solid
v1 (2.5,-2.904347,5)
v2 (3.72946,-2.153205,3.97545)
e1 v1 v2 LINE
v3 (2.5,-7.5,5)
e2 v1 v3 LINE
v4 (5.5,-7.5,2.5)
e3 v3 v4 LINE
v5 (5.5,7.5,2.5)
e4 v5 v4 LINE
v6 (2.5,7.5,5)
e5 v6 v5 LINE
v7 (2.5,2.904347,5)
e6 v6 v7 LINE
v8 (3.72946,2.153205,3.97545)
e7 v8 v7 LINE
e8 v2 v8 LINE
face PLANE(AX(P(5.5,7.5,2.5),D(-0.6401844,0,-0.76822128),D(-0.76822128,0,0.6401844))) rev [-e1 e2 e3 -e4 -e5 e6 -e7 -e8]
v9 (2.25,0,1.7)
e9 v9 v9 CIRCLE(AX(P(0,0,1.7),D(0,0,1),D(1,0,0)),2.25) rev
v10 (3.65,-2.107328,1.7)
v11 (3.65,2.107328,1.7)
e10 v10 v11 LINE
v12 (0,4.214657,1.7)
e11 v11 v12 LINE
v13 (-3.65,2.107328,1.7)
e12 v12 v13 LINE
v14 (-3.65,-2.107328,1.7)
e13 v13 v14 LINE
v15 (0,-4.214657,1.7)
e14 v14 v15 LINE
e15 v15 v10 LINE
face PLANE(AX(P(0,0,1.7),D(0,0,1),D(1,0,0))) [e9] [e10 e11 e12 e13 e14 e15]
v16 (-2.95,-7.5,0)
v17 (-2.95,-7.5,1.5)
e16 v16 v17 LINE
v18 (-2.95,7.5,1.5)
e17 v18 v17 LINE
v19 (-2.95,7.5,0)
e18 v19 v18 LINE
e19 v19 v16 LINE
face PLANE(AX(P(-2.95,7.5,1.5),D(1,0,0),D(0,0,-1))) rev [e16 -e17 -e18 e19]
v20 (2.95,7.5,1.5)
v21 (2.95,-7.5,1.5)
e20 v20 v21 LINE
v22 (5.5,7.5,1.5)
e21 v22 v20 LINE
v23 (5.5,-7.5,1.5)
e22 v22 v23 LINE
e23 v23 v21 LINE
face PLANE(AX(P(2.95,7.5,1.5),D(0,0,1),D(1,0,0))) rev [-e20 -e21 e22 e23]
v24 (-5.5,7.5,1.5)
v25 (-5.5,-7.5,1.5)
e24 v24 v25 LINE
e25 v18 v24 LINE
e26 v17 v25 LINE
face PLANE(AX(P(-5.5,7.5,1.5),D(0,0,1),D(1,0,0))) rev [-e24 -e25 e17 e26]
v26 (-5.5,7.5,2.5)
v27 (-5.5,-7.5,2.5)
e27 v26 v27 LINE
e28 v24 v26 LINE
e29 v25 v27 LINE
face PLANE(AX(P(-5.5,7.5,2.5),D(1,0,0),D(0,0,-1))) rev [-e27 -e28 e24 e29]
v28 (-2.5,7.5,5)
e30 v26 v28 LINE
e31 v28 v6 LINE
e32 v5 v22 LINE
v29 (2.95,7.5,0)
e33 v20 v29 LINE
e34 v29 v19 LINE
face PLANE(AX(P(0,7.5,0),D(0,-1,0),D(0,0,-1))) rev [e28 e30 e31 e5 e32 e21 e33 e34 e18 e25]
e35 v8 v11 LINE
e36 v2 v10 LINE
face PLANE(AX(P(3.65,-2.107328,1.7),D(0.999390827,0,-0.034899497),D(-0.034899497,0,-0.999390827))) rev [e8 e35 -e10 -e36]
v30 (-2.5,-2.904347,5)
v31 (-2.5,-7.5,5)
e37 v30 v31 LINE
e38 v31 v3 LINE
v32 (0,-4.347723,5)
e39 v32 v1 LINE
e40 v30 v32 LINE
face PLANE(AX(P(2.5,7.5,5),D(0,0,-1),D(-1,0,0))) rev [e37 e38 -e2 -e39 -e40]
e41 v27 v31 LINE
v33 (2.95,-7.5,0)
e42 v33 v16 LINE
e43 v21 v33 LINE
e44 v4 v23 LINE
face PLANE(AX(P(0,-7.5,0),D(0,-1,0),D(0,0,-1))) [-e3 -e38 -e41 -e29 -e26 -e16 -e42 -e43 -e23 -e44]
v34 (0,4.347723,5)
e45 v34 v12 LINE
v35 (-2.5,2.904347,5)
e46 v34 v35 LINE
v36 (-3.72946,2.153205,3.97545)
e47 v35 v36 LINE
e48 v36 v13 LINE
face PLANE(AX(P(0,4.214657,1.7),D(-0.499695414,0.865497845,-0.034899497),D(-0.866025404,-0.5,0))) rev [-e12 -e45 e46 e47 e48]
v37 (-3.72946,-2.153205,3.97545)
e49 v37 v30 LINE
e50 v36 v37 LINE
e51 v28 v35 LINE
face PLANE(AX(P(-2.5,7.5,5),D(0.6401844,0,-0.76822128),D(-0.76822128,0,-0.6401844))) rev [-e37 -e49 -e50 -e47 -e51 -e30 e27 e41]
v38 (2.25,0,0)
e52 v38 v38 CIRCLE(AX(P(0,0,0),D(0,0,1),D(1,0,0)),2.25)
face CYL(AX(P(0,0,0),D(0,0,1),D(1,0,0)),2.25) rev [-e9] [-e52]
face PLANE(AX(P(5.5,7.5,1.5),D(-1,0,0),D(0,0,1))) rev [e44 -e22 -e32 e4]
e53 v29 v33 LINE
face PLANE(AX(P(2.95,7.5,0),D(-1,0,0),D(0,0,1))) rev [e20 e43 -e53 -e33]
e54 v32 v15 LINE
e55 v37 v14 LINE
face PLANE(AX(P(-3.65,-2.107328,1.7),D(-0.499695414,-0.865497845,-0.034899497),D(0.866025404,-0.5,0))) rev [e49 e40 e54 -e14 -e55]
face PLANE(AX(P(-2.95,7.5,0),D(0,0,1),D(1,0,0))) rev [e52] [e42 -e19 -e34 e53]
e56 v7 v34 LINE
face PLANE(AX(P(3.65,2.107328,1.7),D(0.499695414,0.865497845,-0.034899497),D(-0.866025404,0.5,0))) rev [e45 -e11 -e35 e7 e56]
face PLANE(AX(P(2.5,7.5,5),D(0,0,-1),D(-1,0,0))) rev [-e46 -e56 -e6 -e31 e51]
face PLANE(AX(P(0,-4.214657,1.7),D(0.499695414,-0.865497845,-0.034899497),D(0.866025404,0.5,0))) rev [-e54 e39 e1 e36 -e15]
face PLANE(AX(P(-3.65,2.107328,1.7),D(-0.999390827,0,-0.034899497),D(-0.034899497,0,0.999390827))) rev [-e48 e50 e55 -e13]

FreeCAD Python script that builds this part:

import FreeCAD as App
import Part
import Sketcher

V = App.Vector
Q = App.Units.Quantity


def faces_at(feature, points):
    """Names of the faces that lie closest to the given points."""
    faces = feature.Shape.Faces
    near = lambda p: min(range(len(faces)), key=lambda i: faces[i].distToShape(Part.Vertex(*p))[0])
    return sorted({f"Face{near(p) + 1}" for p in points})


def add_polygon(sketch, points):
    """Adds a closed chain of lines whose ends are joined by coincident constraints."""
    first, n = sketch.GeometryCount, len(points)
    for a, b in zip(points, points[1:] + points[:1]):
        sketch.addGeometry(Part.LineSegment(App.Vector(*a, 0), App.Vector(*b, 0)), False)
    for i in range(n):
        sketch.addConstraint(Sketcher.Constraint("Coincident", first + i, 2, first + (i + 1) % n, 1))

doc = App.newDocument("Part")
body = doc.addObject("PartDesign::Body", "Body")

# Sketch on XZ plane
sketch1 = body.newObject("Sketcher::SketchObject", "Sketch")
sketch1.AttachmentSupport = (doc.getObject("XZ_Plane"), [""])
sketch1.MapMode = "FlatFace"
add_polygon(sketch1, [(2.95, 0), (-2.95, 0), (-2.95, 1.5), (-5.5, 1.5), (-5.5, 2.5), (-2.5, 5), (2.5, 5), (5.5, 2.5), (5.5, 1.5), (2.95, 1.5)])  # lines 0-9
sketch1.addConstraint([
    Sketcher.Constraint("Horizontal", 0),
    Sketcher.Constraint("Vertical", 1),
    Sketcher.Constraint("Horizontal", 2),
    Sketcher.Constraint("Vertical", 3),
    Sketcher.Constraint("Horizontal", 5),
    Sketcher.Constraint("Vertical", 7),
    Sketcher.Constraint("Horizontal", 8),
    Sketcher.Constraint("Vertical", 9),
    Sketcher.Constraint("Symmetric", 0, 2, 9, 2, -1, 1),
    Sketcher.Constraint("Symmetric", 3, 2, 6, 2, -2),
    Sketcher.Constraint("Horizontal", 2, 2, 7, 2),
    Sketcher.Constraint("Equal", 4, 6),
    Sketcher.Constraint("DistanceX", 5, 1, 5, 2, Q("5 mm")),
    Sketcher.Constraint("DistanceY", 3, 1, 3, 2, Q("1 mm")),
    Sketcher.Constraint("DistanceX", 0, 2, 0, 1, Q("5.9 mm")),
    Sketcher.Constraint("DistanceY", 1, 1, 1, 2, Q("1.5 mm")),
    Sketcher.Constraint("DistanceY", -1, 1, 4, 2, Q("5 mm")),
    Sketcher.Constraint("DistanceX", 3, 2, 4, 2, Q("3 mm")),
])
pad1 = body.newObject("PartDesign::Pad", "Pad")
pad1.Profile = sketch1
pad1.Length = 15
pad1.Midplane = True

# Sketch on XY plane
sketch2 = body.newObject("Sketcher::SketchObject", "Sketch001")
sketch2.AttachmentSupport = (doc.getObject("XY_Plane"), [""])
sketch2.MapMode = "FlatFace"
sketch2.AttachmentOffset = App.Placement(V(0, 0, 5), App.Rotation())
sketch2.addGeometry(Part.Circle(V(0, 0, 0), V(0, 0, 1), 2.25), False)
sketch2.addConstraint([
    Sketcher.Constraint("Coincident", 0, 3, -1, 1),
    Sketcher.Constraint("Diameter", 0, Q("4.5 mm")),
])
pocket1 = body.newObject("PartDesign::Pocket", "Pocket")
pocket1.Profile = sketch2
pocket1.Type = "ThroughAll"
body2 = doc.addObject("PartDesign::Body", "Body001")

# Sketch on XY plane
sketch3 = body2.newObject("Sketcher::SketchObject", "Sketch002")
sketch3.AttachmentSupport = (doc.getObject("XY_Plane001"), [""])
sketch3.MapMode = "FlatFace"
sketch3.AttachmentOffset = App.Placement(V(0, 0, 1.7), App.Rotation())
add_polygon(sketch3, [(0, 4.214657), (-3.65, 2.107328), (-3.65, -2.107328), (0, -4.214657), (3.65, -2.107328), (3.65, 2.107328)])  # lines 0-5
sketch3.addConstraint([
    Sketcher.Constraint("Vertical", 1),
    Sketcher.Constraint("Vertical", 4),
    Sketcher.Constraint("Symmetric", 0, 2, 3, 2, -1, 1),
    Sketcher.Constraint("Symmetric", 2, 2, 5, 2, -1, 1),
    Sketcher.Constraint("PointOnObject", 2, 2, -2),
    Sketcher.Constraint("Parallel", 2, 5),
    Sketcher.Constraint("Horizontal", 1, 2, 3, 2),
    Sketcher.Constraint("Angle", 0, Q("-150 deg")),
    Sketcher.Constraint("DistanceX", 1, 2, 3, 2, Q("7.3 mm")),
    Sketcher.Constraint("DistanceY", 1, 2, 1, 1, Q("4.214657 mm")),
])
pad2 = body2.newObject("PartDesign::Pad", "Pad001")
pad2.Profile = sketch3
pad2.Length = 14.859356
doc.recompute()

datumplane = body2.newObject("PartDesign::Plane", "DatumPlane")
datumplane.AttachmentSupport = (doc.getObject("XY_Plane001"), [""])
datumplane.MapMode = "FlatFace"
datumplane.AttachmentOffset = App.Placement(V(0, 0, 1.7), App.Rotation())
draft = body2.newObject("PartDesign::Draft", "Draft")
draft.Base = (pad2, faces_at(pad2, [
    (-1.825, 3.161, 9.13),
    (-3.65, 0, 9.13),
    (-1.825, -3.161, 9.13),
    (1.825, -3.161, 9.13),
    (3.65, 0, 9.13),
    (1.825, 3.161, 9.13),
]))
draft.NeutralPlane = (datumplane, [""])
draft.Angle = 2
draft.Reversed = True
doc.recompute()

boolean = body.newObject("PartDesign::Boolean", "Boolean")
boolean.Type = "Cut"
boolean.addObjects([body2])

doc.recompute()
